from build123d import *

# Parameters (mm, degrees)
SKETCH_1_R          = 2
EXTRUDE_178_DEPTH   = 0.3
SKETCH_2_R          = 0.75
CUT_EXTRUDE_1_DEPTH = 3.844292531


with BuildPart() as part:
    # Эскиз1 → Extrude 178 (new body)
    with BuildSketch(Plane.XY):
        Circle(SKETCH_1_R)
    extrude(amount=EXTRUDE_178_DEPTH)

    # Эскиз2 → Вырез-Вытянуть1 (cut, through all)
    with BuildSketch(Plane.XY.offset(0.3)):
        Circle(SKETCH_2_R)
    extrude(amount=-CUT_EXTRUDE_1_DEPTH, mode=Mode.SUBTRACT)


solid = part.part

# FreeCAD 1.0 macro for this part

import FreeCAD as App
import Part
import Sketcher
from FreeCAD import Vector
Q = App.Units.Quantity

doc = App.newDocument("Part")
params = doc.addObject("Spreadsheet::Sheet", "Params")
for row, (alias, value) in enumerate([
    ("sketch1_diameter", "4 mm"),
    ("pad1_length", "0.3 mm"),
    ("sketch2_diameter", "1.5 mm"),
], start=1):
    params.set(f"A{row}", alias)
    params.set(f"B{row}", "=" + value)
    params.setAlias(f"B{row}", alias)

body = doc.addObject("PartDesign::Body", "Body")

sketch1 = body.newObject("Sketcher::SketchObject", "Sketch")
sketch1.AttachmentSupport = (doc.getObject("XY_Plane"), [""])
sketch1.MapMode = "FlatFace"
sketch1.addGeometry(Part.Circle(Vector(0, 0, 0), Vector(0, 0, 1), 2), False)
sketch1.addConstraint(Sketcher.Constraint("Coincident", 0, 3, -1, 1))
sketch1.addConstraint(Sketcher.Constraint("Diameter", 0, Q("4 mm")))
sketch1.setExpression("Constraints[1]", "Params.sketch1_diameter")
pad1 = body.newObject("PartDesign::Pad", "Pad")
pad1.Profile = sketch1
pad1.setExpression("Length", "Params.pad1_length")

sketch2 = body.newObject("Sketcher::SketchObject", "Sketch001")
sketch2.AttachmentSupport = (doc.getObject("XY_Plane"), [""])
sketch2.MapMode = "FlatFace"
sketch2.AttachmentOffset = App.Placement(Vector(0, 0, 0.3), App.Rotation())
sketch2.addGeometry(Part.Circle(Vector(0, 0, 0), Vector(0, 0, 1), 0.8), False)
sketch2.addConstraint(Sketcher.Constraint("Coincident", 0, 3, -1, 1))
sketch2.addConstraint(Sketcher.Constraint("Diameter", 0, Q("1.5 mm")))
sketch2.setExpression("Constraints[1]", "Params.sketch2_diameter")
pocket1 = body.newObject("PartDesign::Pocket", "Pocket")
pocket1.Profile = sketch2
pocket1.Type = "ThroughAll"

doc.recompute()
